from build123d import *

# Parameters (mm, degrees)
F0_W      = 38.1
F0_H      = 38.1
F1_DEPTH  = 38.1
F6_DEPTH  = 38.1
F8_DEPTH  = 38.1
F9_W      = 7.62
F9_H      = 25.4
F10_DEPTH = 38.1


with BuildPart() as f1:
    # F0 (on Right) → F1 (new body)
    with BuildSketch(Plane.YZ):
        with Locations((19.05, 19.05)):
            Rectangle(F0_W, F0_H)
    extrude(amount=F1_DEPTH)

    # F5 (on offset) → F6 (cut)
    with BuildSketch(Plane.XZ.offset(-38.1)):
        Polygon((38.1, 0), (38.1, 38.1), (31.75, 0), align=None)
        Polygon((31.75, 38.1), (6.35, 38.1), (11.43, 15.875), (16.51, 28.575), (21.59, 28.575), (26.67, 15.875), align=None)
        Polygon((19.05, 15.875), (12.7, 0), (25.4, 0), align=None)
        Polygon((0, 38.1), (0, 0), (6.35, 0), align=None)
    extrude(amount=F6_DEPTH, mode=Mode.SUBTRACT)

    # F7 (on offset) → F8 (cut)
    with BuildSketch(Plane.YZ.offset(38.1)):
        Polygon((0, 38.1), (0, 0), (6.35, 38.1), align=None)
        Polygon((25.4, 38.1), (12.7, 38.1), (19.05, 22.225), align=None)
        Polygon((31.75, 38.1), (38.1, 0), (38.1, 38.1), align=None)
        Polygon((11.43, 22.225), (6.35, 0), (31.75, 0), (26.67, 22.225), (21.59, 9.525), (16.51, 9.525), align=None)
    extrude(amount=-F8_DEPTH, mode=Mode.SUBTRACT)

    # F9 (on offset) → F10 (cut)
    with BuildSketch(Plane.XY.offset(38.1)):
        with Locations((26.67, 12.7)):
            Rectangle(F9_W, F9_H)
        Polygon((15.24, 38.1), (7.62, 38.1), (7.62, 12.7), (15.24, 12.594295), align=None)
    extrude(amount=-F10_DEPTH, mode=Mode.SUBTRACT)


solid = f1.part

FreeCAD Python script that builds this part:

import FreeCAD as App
import Part
import Sketcher

V = App.Vector
Q = App.Units.Quantity


def add_polygon(sketch, points):
    """Adds a closed chain of lines whose ends are joined by coincident constraints."""
    first, n = sketch.GeometryCount, len(points)
    for a, b in zip(points, points[1:] + points[:1]):
        sketch.addGeometry(Part.LineSegment(App.Vector(*a, 0), App.Vector(*b, 0)), False)
    for i in range(n):
        sketch.addConstraint(Sketcher.Constraint("Coincident", first + i, 2, first + (i + 1) % n, 1))

doc = App.newDocument("Part")
params = doc.addObject("Spreadsheet::Sheet", "Params")
for row, (alias, value) in enumerate([
    ("sketch1_width", "1.5 in"),
    ("pad1_length", "1.5 in"),
    ("sketch2_width", "1 in"),
    ("sketch2_width2", "0.2 in"),
    ("sketch2_width3", "0.5 in"),
    ("sketch2_height", "1.5 in"),
    ("pocket1_length", "1.5 in"),
    ("sketch3_width", "1 in"),
    ("sketch3_width2", "0.5 in"),
    ("sketch3_width3", "0.2 in"),
    ("sketch3_height", "1.5 in"),
    ("pocket2_length", "1.5 in"),
    ("sketch4_height", "1 in"),
    ("sketch4_width", "0.3 in"),
    ("pocket3_length", "1.5 in"),
], start=1):
    params.set(f"A{row}", alias)
    params.set(f"B{row}", "=" + value)
    params.setAlias(f"B{row}", alias)

body = doc.addObject("PartDesign::Body", "Body")

# Sketch on YZ plane
sketch1 = body.newObject("Sketcher::SketchObject", "Sketch")
sketch1.AttachmentSupport = (doc.getObject("YZ_Plane"), [""])
sketch1.MapMode = "FlatFace"
add_polygon(sketch1, [(0, 38), (0, 0), (38, 0), (38, 38)])  # lines 0-3
sketch1.addConstraint([
    Sketcher.Constraint("Vertical", 0),
    Sketcher.Constraint("Horizontal", 1),
    Sketcher.Constraint("Vertical", 2),
    Sketcher.Constraint("Horizontal", 3),
    Sketcher.Constraint("Coincident", 0, 2, -1, 1),
    Sketcher.Constraint("Equal", 3, 0),
    Sketcher.Constraint("DistanceX", 1, 1, 1, 2, Q("1.5 in")),
])
sketch1.setExpression("Constraints[10]", "Params.sketch1_width")
pad1 = body.newObject("PartDesign::Pad", "Pad")
pad1.Profile = sketch1
pad1.setExpression("Length", "Params.pad1_length")

# Sketch on XZ plane
sketch2 = body.newObject("Sketcher::SketchObject", "Sketch001")
sketch2.AttachmentSupport = (doc.getObject("XZ_Plane"), [""])
sketch2.MapMode = "FlatFace"
sketch2.AttachmentOffset = App.Placement(V(0, 0, -1.5 * 25.4), App.Rotation())
add_polygon(sketch2, [(38, 0), (38, 38), (32, 0)])  # lines 0-2
add_polygon(sketch2, [(32, 38), (6, 38), (11, 16), (17, 29), (22, 29), (27, 16)])  # lines 3-8
add_polygon(sketch2, [(19, 16), (13, 0), (25, 0)])  # lines 9-11
add_polygon(sketch2, [(0, 38), (0, 0), (6, 0)])  # lines 12-14
sketch2.addConstraint([
    Sketcher.Constraint("Vertical", 0),
    Sketcher.Constraint("Horizontal", 2),
    Sketcher.Constraint("Horizontal", 3),
    Sketcher.Constraint("Horizontal", 6),
    Sketcher.Constraint("Horizontal", 10),
    Sketcher.Constraint("Vertical", 12),
    Sketcher.Constraint("Horizontal", 13),
    Sketcher.Constraint("Coincident", 12, 2, -1, 1),
    Sketcher.Constraint("PointOnObject", 1, 2, -1),
    Sketcher.Constraint("PointOnObject", 9, 2, -1),
    Sketcher.Constraint("Parallel", 5, 9),
    Sketcher.Constraint("Parallel", 7, 11),
    Sketcher.Constraint("Horizontal", 0, 2, 3, 2),
    Sketcher.Constraint("Horizontal", 4, 2, 7, 2),
    Sketcher.Constraint("Horizontal", 7, 2, 11, 2),
    Sketcher.Constraint("Horizontal", 8, 2, 14, 2),
    Sketcher.Constraint("Vertical", 1, 2, 8, 2),
    Sketcher.Constraint("Vertical", 3, 2, 13, 2),
    Sketcher.Constraint("Equal", 2, 13),
    Sketcher.Constraint("Equal", 5, 7),
    Sketcher.Constraint("Equal", 4, 8),
    Sketcher.Constraint("DistanceX", 3, 2, 3, 1, Q("1 in")),
    Sketcher.Constraint("DistanceX", 6, 1, 6, 2, Q("0.2 in")),
    Sketcher.Constraint("DistanceX", 10, 1, 10, 2, Q("0.5 in")),
    Sketcher.Constraint("DistanceY", 0, 1, 0, 2, Q("1.5 in")),
    Sketcher.Constraint("DistanceX", -1, 1, 10, 2, Q("1 in")),
    Sketcher.Constraint("DistanceX", 9, 2, 2, 2, Q("1 in")),
    Sketcher.Constraint("DistanceX", 3, 2, 4, 2, Q("0.2 in")),
    Sketcher.Constraint("DistanceY", 4, 2, 5, 2, Q("0.5 in")),
])
sketch2.setExpression("Constraints[36]", "Params.sketch2_width")
sketch2.setExpression("Constraints[37]", "Params.sketch2_width2")
sketch2.setExpression("Constraints[38]", "Params.sketch2_width3")
sketch2.setExpression("Constraints[39]", "Params.sketch2_height")
pocket1 = body.newObject("PartDesign::Pocket", "Pocket")
pocket1.Profile = sketch2
pocket1.setExpression("Length", "Params.pocket1_length")
pocket1.Reversed = True

# Sketch on YZ plane
sketch3 = body.newObject("Sketcher::SketchObject", "Sketch002")
sketch3.AttachmentSupport = (doc.getObject("YZ_Plane"), [""])
sketch3.MapMode = "FlatFace"
sketch3.AttachmentOffset = App.Placement(V(0, 0, 1.5 * 25.4), App.Rotation())
add_polygon(sketch3, [(0, 38), (0, 0), (6, 38)])  # lines 0-2
add_polygon(sketch3, [(25, 38), (13, 38), (19, 22)])  # lines 3-5
add_polygon(sketch3, [(32, 38), (38, 0), (38, 38)])  # lines 6-8
add_polygon(sketch3, [(11, 22), (6, 0), (32, 0), (27, 22), (22, 10), (17, 10)])  # lines 9-14
sketch3.addConstraint([
    Sketcher.Constraint("Vertical", 0),
    Sketcher.Constraint("Horizontal", 2),
    Sketcher.Constraint("Horizontal", 3),
    Sketcher.Constraint("Vertical", 7),
    Sketcher.Constraint("Horizontal", 8),
    Sketcher.Constraint("Horizontal", 10),
    Sketcher.Constraint("Horizontal", 13),
    Sketcher.Constraint("Coincident", 0, 2, -1, 1),
    Sketcher.Constraint("PointOnObject", 6, 2, -1),
    Sketcher.Constraint("PointOnObject", 9, 2, -1),
    Sketcher.Constraint("Parallel", 5, 12),
    Sketcher.Constraint("Parallel", 4, 14),
    Sketcher.Constraint("Horizontal", 2, 2, 3, 2),
    Sketcher.Constraint("Horizontal", 5, 2, 7, 2),
    Sketcher.Constraint("Horizontal", 4, 2, 11, 2),
    Sketcher.Constraint("Horizontal", 11, 2, 14, 2),
    Sketcher.Constraint("Vertical", 1, 2, 9, 2),
    Sketcher.Constraint("Vertical", 8, 2, 10, 2),
    Sketcher.Constraint("Equal", 2, 8),
    Sketcher.Constraint("Equal", 4, 5),
    Sketcher.Constraint("Equal", 9, 11),
    Sketcher.Constraint("DistanceX", 10, 1, 10, 2, Q("1 in")),
    Sketcher.Constraint("DistanceX", 3, 2, 3, 1, Q("0.5 in")),
    Sketcher.Constraint("DistanceX", 13, 2, 13, 1, Q("0.2 in")),
    Sketcher.Constraint("DistanceY", 0, 2, 0, 1, Q("1.5 in")),
    Sketcher.Constraint("DistanceX", -1, 1, 5, 2, Q("1 in")),
    Sketcher.Constraint("DistanceX", 3, 2, 6, 2, Q("1 in")),
    Sketcher.Constraint("DistanceX", 4, 2, 11, 2, Q("0.3 in")),
    Sketcher.Constraint("DistanceY", 12, 2, 4, 2, Q("0.5 in")),
])
sketch3.setExpression("Constraints[36]", "Params.sketch3_width")
sketch3.setExpression("Constraints[37]", "Params.sketch3_width2")
sketch3.setExpression("Constraints[38]", "Params.sketch3_width3")
sketch3.setExpression("Constraints[39]", "Params.sketch3_height")
pocket2 = body.newObject("PartDesign::Pocket", "Pocket001")
pocket2.Profile = sketch3
pocket2.setExpression("Length", "Params.pocket2_length")

# Sketch on XY plane
sketch4 = body.newObject("Sketcher::SketchObject", "Sketch003")
sketch4.AttachmentSupport = (doc.getObject("XY_Plane"), [""])
sketch4.MapMode = "FlatFace"
sketch4.AttachmentOffset = App.Placement(V(0, 0, 1.5 * 25.4), App.Rotation())
add_polygon(sketch4, [(23, 25), (23, 0), (30, 0), (30, 25)])  # lines 0-3
add_polygon(sketch4, [(15, 38), (8, 38), (8, 13), (15, 13)])  # lines 4-7
sketch4.addConstraint([
    Sketcher.Constraint("Vertical", 0),
    Sketcher.Constraint("Horizontal", 1),
    Sketcher.Constraint("Vertical", 2),
    Sketcher.Constraint("Horizontal", 3),
    Sketcher.Constraint("Horizontal", 4),
    Sketcher.Constraint("Vertical", 5),
    Sketcher.Constraint("Vertical", 7),
    Sketcher.Constraint("PointOnObject", 0, 2, -1),
    Sketcher.Constraint("Equal", 3, 4),
    Sketcher.Constraint("Equal", 2, 5),
    Sketcher.Constraint("DistanceY", 0, 2, 0, 1, Q("1 in")),
    Sketcher.Constraint("DistanceX", 1, 1, 1, 2, Q("0.3 in")),
    Sketcher.Constraint("DistanceX", -1, 1, 0, 2, Q("0.9 in")),
    Sketcher.Constraint("DistanceX", -1, 1, 4, 2, Q("0.3 in")),
    Sketcher.Constraint("DistanceY", -1, 1, 4, 2, Q("1.5 in")),
    Sketcher.Constraint("DistanceY", 7, 1, 7, 2, 25.505705),
])
sketch4.setExpression("Constraints[18]", "Params.sketch4_height")
sketch4.setExpression("Constraints[19]", "Params.sketch4_width")
pocket3 = body.newObject("PartDesign::Pocket", "Pocket002")
pocket3.Profile = sketch4
pocket3.setExpression("Length", "Params.pocket3_length")

doc.recompute()
